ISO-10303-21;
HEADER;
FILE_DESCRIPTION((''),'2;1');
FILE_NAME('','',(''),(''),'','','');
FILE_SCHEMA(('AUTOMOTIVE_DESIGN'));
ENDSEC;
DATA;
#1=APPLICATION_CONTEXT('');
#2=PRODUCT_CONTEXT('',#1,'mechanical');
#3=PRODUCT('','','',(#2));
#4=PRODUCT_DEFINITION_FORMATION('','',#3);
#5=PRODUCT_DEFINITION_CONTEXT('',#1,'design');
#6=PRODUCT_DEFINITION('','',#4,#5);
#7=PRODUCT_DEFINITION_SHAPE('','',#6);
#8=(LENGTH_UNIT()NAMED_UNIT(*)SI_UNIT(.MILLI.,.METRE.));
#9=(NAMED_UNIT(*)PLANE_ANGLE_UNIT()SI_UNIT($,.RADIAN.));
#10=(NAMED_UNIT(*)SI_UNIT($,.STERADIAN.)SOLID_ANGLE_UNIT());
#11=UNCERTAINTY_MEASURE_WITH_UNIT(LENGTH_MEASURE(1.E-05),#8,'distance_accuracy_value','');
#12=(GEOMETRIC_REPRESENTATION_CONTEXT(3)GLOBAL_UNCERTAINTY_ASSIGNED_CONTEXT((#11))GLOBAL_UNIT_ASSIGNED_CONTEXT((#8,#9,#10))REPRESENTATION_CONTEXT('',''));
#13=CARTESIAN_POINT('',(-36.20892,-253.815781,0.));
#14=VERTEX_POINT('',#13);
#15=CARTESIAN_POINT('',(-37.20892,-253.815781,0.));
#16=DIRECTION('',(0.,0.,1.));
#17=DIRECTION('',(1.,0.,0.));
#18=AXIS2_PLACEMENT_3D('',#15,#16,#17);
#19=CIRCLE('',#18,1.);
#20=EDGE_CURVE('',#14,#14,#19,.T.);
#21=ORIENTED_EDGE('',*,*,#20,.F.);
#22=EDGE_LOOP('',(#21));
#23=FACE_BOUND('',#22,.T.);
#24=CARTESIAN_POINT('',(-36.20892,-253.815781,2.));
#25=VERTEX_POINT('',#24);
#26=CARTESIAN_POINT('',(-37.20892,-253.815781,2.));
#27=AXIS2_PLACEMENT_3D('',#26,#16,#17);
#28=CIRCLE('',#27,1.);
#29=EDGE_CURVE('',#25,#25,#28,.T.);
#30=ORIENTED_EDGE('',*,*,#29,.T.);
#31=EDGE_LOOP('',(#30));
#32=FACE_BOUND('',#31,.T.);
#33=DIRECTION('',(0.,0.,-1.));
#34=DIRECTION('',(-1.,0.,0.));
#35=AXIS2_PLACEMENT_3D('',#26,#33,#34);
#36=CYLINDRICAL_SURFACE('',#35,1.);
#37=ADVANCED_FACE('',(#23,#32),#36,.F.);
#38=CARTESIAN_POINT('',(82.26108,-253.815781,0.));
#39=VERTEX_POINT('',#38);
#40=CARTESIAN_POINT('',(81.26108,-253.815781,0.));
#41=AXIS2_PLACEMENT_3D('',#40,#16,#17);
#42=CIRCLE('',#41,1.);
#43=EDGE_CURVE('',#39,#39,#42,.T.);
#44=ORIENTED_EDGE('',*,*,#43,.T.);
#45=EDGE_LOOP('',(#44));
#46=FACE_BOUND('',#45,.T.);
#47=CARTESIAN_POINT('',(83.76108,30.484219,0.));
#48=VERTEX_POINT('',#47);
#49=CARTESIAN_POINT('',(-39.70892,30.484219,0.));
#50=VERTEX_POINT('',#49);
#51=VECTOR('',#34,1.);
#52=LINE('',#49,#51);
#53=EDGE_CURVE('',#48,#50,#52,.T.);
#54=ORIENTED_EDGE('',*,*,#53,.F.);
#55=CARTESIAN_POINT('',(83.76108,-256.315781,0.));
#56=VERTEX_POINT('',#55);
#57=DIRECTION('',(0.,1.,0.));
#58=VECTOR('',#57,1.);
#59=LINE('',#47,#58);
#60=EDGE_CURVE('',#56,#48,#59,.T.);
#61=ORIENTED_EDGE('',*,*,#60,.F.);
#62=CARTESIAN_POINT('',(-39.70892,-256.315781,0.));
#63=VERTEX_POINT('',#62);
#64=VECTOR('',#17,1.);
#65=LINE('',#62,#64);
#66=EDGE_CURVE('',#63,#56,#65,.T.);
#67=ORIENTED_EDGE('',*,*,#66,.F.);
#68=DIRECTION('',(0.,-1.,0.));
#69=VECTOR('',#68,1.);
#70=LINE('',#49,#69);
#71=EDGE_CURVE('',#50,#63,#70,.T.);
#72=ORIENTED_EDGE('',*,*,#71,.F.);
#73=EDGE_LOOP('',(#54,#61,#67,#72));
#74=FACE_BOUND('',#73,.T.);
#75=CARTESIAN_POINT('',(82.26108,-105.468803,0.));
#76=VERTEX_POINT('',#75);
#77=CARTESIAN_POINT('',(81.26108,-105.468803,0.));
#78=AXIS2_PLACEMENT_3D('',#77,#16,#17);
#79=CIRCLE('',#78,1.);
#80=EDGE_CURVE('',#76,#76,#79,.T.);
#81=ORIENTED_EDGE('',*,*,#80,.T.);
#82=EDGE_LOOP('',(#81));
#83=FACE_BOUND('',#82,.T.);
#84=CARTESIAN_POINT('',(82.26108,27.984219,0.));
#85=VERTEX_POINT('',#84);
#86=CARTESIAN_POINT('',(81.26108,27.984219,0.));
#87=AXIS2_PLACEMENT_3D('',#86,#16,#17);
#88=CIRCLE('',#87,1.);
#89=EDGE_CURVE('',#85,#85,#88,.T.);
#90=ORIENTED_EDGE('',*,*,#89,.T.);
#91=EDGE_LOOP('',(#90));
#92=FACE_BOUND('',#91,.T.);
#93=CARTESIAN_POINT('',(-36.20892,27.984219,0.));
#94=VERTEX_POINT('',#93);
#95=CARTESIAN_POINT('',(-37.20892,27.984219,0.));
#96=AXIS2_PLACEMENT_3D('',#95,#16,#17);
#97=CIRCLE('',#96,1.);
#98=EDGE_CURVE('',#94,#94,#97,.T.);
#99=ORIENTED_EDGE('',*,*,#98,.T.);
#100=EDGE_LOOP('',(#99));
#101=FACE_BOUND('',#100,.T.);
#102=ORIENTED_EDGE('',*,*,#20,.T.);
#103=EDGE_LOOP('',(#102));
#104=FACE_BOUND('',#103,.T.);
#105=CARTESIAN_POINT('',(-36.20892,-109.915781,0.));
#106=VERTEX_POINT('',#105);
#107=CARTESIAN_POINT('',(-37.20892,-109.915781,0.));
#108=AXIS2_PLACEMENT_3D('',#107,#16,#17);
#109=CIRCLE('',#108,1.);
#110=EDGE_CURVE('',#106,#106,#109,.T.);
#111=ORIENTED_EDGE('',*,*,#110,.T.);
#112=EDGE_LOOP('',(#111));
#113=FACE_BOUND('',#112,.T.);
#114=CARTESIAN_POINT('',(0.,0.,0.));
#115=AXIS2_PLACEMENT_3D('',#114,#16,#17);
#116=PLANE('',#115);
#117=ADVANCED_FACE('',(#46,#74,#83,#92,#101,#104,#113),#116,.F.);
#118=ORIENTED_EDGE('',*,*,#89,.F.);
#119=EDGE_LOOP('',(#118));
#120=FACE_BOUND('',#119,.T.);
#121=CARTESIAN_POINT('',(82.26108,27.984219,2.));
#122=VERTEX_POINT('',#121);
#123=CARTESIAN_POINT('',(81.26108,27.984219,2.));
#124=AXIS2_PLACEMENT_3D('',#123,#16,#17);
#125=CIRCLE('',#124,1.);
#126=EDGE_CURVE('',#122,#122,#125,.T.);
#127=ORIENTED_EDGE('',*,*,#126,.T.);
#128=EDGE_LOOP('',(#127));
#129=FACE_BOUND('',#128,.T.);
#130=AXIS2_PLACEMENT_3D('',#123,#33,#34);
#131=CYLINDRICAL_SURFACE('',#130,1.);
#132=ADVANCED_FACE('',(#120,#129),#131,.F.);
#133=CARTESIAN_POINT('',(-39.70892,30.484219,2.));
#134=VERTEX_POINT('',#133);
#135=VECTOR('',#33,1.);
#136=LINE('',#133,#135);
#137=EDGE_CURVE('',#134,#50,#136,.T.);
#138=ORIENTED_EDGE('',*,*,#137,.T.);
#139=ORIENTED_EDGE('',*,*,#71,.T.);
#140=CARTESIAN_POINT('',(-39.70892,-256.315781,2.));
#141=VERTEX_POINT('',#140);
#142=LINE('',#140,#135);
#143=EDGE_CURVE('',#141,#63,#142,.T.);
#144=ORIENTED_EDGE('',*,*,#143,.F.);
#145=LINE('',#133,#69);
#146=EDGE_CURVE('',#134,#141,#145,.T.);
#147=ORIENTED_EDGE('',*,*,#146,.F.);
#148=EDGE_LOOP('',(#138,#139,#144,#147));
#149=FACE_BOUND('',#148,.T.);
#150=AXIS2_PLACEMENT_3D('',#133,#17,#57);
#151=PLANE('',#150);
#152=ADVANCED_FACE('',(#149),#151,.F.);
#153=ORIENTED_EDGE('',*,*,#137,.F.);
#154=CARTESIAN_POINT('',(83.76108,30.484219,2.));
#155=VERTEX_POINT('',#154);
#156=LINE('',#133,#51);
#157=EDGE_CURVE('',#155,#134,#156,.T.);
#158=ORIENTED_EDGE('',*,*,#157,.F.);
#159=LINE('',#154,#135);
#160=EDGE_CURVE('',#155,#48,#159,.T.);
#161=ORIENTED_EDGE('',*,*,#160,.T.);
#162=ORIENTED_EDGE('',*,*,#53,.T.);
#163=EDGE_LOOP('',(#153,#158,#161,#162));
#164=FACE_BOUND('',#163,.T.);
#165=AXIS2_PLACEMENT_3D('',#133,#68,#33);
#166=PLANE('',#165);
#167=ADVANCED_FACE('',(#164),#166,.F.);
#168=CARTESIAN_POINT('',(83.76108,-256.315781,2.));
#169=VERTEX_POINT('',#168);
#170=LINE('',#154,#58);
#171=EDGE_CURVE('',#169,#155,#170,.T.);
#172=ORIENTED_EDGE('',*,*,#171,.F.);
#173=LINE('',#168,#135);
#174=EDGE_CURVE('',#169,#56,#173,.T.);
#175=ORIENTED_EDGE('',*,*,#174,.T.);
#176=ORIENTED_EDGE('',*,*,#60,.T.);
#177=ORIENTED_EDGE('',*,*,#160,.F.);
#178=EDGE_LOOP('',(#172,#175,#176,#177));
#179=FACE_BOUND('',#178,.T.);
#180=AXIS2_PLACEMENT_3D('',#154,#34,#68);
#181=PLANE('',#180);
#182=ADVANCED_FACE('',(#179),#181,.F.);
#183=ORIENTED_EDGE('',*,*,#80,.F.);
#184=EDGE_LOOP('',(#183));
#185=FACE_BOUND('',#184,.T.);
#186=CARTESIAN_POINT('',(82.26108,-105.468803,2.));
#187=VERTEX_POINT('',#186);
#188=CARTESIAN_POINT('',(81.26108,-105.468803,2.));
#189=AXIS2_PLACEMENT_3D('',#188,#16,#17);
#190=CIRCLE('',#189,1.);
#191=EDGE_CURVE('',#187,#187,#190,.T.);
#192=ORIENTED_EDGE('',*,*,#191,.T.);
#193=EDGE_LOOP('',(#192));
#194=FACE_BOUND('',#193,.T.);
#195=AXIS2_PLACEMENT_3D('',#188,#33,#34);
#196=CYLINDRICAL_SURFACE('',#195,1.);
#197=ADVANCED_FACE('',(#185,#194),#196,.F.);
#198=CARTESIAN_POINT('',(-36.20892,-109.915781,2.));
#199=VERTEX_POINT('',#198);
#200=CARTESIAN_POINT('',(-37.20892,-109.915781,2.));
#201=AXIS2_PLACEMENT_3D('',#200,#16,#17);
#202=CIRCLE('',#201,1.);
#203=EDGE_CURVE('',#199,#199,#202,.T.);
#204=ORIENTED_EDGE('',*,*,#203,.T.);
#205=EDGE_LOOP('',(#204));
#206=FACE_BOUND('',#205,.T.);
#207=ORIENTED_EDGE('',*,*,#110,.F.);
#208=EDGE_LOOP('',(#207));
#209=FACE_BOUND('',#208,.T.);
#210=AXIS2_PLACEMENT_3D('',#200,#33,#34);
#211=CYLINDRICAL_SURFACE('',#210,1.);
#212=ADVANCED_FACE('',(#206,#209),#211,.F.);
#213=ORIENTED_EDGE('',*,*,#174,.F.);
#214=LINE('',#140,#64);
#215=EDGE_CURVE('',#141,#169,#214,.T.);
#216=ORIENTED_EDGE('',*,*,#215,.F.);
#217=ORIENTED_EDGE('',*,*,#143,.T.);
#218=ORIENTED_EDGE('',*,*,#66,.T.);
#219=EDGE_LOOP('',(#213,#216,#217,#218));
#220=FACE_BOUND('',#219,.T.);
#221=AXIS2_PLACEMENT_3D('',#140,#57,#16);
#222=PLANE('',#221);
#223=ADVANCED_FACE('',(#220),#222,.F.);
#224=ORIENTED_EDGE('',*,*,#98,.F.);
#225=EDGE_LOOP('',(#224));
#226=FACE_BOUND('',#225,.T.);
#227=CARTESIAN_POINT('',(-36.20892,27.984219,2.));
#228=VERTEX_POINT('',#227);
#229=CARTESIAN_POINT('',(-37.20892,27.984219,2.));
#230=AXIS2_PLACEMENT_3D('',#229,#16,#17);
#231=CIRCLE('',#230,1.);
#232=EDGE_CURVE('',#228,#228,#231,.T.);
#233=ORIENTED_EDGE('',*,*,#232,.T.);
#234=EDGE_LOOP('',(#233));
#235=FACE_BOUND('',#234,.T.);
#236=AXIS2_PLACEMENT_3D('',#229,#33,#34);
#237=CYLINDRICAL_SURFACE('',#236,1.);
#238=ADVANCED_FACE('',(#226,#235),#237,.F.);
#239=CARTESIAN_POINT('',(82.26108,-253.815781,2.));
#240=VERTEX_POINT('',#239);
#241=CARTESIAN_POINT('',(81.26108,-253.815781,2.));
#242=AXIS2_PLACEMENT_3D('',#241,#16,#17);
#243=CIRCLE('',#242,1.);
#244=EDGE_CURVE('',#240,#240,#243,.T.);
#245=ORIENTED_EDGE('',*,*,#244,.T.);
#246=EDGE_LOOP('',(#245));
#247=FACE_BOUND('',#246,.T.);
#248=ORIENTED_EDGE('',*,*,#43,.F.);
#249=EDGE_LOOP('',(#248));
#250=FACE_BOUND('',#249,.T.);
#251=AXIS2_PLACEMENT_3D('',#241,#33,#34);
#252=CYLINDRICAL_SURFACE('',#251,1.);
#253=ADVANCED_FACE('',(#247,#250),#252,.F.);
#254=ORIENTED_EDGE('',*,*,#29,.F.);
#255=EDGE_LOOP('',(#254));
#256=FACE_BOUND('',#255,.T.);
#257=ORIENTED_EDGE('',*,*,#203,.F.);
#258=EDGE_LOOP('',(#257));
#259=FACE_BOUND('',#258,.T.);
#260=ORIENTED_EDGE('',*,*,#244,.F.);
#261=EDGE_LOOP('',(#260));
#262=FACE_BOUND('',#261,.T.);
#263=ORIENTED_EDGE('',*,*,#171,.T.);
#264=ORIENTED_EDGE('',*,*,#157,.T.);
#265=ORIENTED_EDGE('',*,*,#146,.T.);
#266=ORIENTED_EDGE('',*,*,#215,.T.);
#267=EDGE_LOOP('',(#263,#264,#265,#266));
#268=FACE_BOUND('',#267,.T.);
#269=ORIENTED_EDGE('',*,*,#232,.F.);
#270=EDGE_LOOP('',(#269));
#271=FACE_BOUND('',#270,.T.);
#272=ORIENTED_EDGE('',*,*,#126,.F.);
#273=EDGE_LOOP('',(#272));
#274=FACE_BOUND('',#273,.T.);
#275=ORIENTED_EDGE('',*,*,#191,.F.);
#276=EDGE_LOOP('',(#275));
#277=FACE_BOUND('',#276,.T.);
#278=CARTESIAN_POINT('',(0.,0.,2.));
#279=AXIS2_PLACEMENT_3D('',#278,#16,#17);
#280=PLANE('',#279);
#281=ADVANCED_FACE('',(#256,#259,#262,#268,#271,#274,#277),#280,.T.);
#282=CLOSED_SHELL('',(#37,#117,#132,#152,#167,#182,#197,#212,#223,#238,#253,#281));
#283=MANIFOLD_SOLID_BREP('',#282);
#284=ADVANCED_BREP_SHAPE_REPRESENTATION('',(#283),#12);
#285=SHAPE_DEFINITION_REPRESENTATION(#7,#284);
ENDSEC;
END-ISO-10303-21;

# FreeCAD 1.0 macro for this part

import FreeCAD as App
import Part
import Sketcher
from FreeCAD import Vector
Q = App.Units.Quantity

doc = App.newDocument("Part")
params = doc.addObject("Spreadsheet::Sheet", "Params")
for row, (alias, value) in enumerate([
    ("sketch1_diameter", "2 mm"),
    ("sketch1_height", "286.8 mm"),
    ("sketch1_width", "123.47 mm"),
    ("pad1_length", "2 mm"),
], start=1):
    params.set(f"A{row}", alias)
    params.set(f"B{row}", "=" + value)
    params.setAlias(f"B{row}", alias)

body = doc.addObject("PartDesign::Body", "Body")

sketch1 = body.newObject("Sketcher::SketchObject", "Sketch")
sketch1.AttachmentSupport = (doc.getObject("XY_Plane"), [""])
sketch1.MapMode = "FlatFace"
sketch1.addGeometry(Part.LineSegment(Vector(-39.7, 30.5, 0), Vector(-39.7, -256.3, 0)), False)
sketch1.addGeometry(Part.LineSegment(Vector(-39.7, -256.3, 0), Vector(83.8, -256.3, 0)), False)
sketch1.addGeometry(Part.LineSegment(Vector(83.8, -256.3, 0), Vector(83.8, 30.5, 0)), False)
sketch1.addGeometry(Part.LineSegment(Vector(83.8, 30.5, 0), Vector(-39.7, 30.5, 0)), False)
sketch1.addGeometry(Part.Circle(Vector(-37.2, -253.8, 0), Vector(0, 0, 1), 1), False)
sketch1.addGeometry(Part.Circle(Vector(81.3, -253.8, 0), Vector(0, 0, 1), 1), False)
sketch1.addGeometry(Part.Circle(Vector(-37.2, -109.9, 0), Vector(0, 0, 1), 1), False)
sketch1.addGeometry(Part.Circle(Vector(-37.2, 28, 0), Vector(0, 0, 1), 1), False)
sketch1.addGeometry(Part.Circle(Vector(81.3, -105.5, 0), Vector(0, 0, 1), 1), False)
sketch1.addGeometry(Part.Circle(Vector(81.3, 28, 0), Vector(0, 0, 1), 1), False)
sketch1.addConstraint(Sketcher.Constraint("Coincident", 0, 2, 1, 1))
sketch1.addConstraint(Sketcher.Constraint("Coincident", 1, 2, 2, 1))
sketch1.addConstraint(Sketcher.Constraint("Coincident", 2, 2, 3, 1))
sketch1.addConstraint(Sketcher.Constraint("Coincident", 3, 2, 0, 1))
sketch1.addConstraint(Sketcher.Constraint("Vertical", 0))
sketch1.addConstraint(Sketcher.Constraint("Horizontal", 1))
sketch1.addConstraint(Sketcher.Constraint("Vertical", 2))
sketch1.addConstraint(Sketcher.Constraint("Horizontal", 3))
sketch1.addConstraint(Sketcher.Constraint("Equal", 4, 5))
sketch1.addConstraint(Sketcher.Constraint("Equal", 5, 6))
sketch1.addConstraint(Sketcher.Constraint("Equal", 6, 7))
sketch1.addConstraint(Sketcher.Constraint("Equal", 7, 8))
sketch1.addConstraint(Sketcher.Constraint("Equal", 8, 9))
sketch1.addConstraint(Sketcher.Constraint("Horizontal", 4, 3, 5, 3))
sketch1.addConstraint(Sketcher.Constraint("Horizontal", 7, 3, 9, 3))
sketch1.addConstraint(Sketcher.Constraint("Vertical", 4, 3, 6, 3))
sketch1.addConstraint(Sketcher.Constraint("Vertical", 6, 3, 7, 3))
sketch1.addConstraint(Sketcher.Constraint("Vertical", 5, 3, 8, 3))
sketch1.addConstraint(Sketcher.Constraint("Vertical", 8, 3, 9, 3))
sketch1.addConstraint(Sketcher.Constraint("Diameter", 4, Q("2 mm")))
sketch1.addConstraint(Sketcher.Constraint("DistanceY", 0, 2, 0, 1, Q("286.8 mm")))
sketch1.addConstraint(Sketcher.Constraint("DistanceX", 1, 1, 1, 2, Q("123.47 mm")))
sketch1.addConstraint(Sketcher.Constraint("DistanceY", 4, 3, 6, 3, Q("143.9 mm")))
sketch1.addConstraint(Sketcher.Constraint("DistanceY", 6, 3, 7, 3, Q("137.9 mm")))
sketch1.addConstraint(Sketcher.Constraint("DistanceX", 0, 2, 4, 3, Q("2.5 mm")))
sketch1.addConstraint(Sketcher.Constraint("DistanceY", 0, 2, 4, 3, Q("2.5 mm")))
sketch1.addConstraint(Sketcher.Constraint("DistanceX", 5, 3, 1, 2, Q("2.5 mm")))
sketch1.addConstraint(Sketcher.Constraint("DistanceX", 4, 3, -1, 1, Q("37.20892 mm")))
sketch1.addConstraint(Sketcher.Constraint("DistanceY", 4, 3, -1, 1, Q("253.815781 mm")))
sketch1.addConstraint(Sketcher.Constraint("DistanceY", 8, 3, -1, 1, Q("105.468803 mm")))
sketch1.setExpression("Constraints[19]", "Params.sketch1_diameter")
sketch1.setExpression("Constraints[20]", "Params.sketch1_height")
sketch1.setExpression("Constraints[21]", "Params.sketch1_width")
pad1 = body.newObject("PartDesign::Pad", "Pad")
pad1.Profile = sketch1
pad1.setExpression("Length", "Params.pad1_length")

doc.recompute()
